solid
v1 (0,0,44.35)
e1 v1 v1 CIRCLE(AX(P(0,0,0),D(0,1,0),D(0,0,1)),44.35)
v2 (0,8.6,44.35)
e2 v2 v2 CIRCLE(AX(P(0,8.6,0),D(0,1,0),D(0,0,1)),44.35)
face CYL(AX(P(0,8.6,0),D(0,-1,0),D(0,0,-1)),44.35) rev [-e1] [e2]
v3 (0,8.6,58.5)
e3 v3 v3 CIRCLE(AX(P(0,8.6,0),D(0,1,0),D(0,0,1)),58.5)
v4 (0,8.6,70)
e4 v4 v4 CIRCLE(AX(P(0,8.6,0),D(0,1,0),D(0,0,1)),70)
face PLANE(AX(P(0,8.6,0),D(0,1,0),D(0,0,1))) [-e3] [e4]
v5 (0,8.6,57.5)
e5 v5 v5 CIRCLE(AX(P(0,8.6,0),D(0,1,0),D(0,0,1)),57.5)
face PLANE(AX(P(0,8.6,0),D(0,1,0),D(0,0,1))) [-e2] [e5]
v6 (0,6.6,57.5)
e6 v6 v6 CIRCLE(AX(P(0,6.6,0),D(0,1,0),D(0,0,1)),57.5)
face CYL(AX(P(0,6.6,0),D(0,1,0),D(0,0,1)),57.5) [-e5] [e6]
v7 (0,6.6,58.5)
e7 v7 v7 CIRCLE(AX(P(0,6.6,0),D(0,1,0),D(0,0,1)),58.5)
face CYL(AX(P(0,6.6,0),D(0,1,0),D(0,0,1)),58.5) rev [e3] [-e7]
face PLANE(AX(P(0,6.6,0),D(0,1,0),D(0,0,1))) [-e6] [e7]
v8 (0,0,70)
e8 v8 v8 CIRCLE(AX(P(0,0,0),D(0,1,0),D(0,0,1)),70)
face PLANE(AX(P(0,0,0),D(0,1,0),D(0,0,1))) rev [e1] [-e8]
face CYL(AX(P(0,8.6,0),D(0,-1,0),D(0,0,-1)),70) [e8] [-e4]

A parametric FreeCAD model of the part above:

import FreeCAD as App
import Part
import Sketcher
Q = App.Units.Quantity

doc = App.newDocument("Part")
body = doc.addObject("PartDesign::Body", "Body")

# Sketch on XZ plane
sketch1 = body.newObject("Sketcher::SketchObject", "Sketch")
sketch1.AttachmentSupport = (doc.getObject("XZ_Plane"), [""])
sketch1.MapMode = "FlatFace"
sketch1.addGeometry([
    Part.Circle(App.Vector(0, 0, 0), App.Vector(0, 0, 1), 70),
    Part.Circle(App.Vector(0, 0, 0), App.Vector(0, 0, 1), 44),
], False)
sketch1.addConstraint([
    Sketcher.Constraint("Coincident", 0, 3, -1, 1),
    Sketcher.Constraint("Coincident", 1, 3, -1, 1),
    Sketcher.Constraint("Diameter", 0, Q("140 mm")),
    Sketcher.Constraint("Diameter", 1, Q("88.7 mm")),
])
pad1 = body.newObject("PartDesign::Pad", "Pad")
pad1.Profile = sketch1
pad1.Length = 8.6
pad1.Reversed = True

# Sketch on XZ plane
sketch2 = body.newObject("Sketcher::SketchObject", "Sketch001")
sketch2.AttachmentSupport = (doc.getObject("XZ_Plane"), [""])
sketch2.MapMode = "FlatFace"
sketch2.AttachmentOffset = App.Placement(App.Vector(0, 0, -8.6), App.Rotation())
sketch2.addGeometry([
    Part.Circle(App.Vector(0, 0, 0), App.Vector(0, 0, 1), 58),
    Part.Circle(App.Vector(0, 0, 0), App.Vector(0, 0, 1), 58),
], False)
sketch2.addConstraint([
    Sketcher.Constraint("Coincident", 0, 3, -1, 1),
    Sketcher.Constraint("Coincident", 1, 3, -1, 1),
    Sketcher.Constraint("Diameter", 0, Q("117 mm")),
    Sketcher.Constraint("Diameter", 1, Q("115 mm")),
])
pocket1 = body.newObject("PartDesign::Pocket", "Pocket")
pocket1.Profile = sketch2
pocket1.Length = 2
pocket1.Reversed = True

doc.recompute()
